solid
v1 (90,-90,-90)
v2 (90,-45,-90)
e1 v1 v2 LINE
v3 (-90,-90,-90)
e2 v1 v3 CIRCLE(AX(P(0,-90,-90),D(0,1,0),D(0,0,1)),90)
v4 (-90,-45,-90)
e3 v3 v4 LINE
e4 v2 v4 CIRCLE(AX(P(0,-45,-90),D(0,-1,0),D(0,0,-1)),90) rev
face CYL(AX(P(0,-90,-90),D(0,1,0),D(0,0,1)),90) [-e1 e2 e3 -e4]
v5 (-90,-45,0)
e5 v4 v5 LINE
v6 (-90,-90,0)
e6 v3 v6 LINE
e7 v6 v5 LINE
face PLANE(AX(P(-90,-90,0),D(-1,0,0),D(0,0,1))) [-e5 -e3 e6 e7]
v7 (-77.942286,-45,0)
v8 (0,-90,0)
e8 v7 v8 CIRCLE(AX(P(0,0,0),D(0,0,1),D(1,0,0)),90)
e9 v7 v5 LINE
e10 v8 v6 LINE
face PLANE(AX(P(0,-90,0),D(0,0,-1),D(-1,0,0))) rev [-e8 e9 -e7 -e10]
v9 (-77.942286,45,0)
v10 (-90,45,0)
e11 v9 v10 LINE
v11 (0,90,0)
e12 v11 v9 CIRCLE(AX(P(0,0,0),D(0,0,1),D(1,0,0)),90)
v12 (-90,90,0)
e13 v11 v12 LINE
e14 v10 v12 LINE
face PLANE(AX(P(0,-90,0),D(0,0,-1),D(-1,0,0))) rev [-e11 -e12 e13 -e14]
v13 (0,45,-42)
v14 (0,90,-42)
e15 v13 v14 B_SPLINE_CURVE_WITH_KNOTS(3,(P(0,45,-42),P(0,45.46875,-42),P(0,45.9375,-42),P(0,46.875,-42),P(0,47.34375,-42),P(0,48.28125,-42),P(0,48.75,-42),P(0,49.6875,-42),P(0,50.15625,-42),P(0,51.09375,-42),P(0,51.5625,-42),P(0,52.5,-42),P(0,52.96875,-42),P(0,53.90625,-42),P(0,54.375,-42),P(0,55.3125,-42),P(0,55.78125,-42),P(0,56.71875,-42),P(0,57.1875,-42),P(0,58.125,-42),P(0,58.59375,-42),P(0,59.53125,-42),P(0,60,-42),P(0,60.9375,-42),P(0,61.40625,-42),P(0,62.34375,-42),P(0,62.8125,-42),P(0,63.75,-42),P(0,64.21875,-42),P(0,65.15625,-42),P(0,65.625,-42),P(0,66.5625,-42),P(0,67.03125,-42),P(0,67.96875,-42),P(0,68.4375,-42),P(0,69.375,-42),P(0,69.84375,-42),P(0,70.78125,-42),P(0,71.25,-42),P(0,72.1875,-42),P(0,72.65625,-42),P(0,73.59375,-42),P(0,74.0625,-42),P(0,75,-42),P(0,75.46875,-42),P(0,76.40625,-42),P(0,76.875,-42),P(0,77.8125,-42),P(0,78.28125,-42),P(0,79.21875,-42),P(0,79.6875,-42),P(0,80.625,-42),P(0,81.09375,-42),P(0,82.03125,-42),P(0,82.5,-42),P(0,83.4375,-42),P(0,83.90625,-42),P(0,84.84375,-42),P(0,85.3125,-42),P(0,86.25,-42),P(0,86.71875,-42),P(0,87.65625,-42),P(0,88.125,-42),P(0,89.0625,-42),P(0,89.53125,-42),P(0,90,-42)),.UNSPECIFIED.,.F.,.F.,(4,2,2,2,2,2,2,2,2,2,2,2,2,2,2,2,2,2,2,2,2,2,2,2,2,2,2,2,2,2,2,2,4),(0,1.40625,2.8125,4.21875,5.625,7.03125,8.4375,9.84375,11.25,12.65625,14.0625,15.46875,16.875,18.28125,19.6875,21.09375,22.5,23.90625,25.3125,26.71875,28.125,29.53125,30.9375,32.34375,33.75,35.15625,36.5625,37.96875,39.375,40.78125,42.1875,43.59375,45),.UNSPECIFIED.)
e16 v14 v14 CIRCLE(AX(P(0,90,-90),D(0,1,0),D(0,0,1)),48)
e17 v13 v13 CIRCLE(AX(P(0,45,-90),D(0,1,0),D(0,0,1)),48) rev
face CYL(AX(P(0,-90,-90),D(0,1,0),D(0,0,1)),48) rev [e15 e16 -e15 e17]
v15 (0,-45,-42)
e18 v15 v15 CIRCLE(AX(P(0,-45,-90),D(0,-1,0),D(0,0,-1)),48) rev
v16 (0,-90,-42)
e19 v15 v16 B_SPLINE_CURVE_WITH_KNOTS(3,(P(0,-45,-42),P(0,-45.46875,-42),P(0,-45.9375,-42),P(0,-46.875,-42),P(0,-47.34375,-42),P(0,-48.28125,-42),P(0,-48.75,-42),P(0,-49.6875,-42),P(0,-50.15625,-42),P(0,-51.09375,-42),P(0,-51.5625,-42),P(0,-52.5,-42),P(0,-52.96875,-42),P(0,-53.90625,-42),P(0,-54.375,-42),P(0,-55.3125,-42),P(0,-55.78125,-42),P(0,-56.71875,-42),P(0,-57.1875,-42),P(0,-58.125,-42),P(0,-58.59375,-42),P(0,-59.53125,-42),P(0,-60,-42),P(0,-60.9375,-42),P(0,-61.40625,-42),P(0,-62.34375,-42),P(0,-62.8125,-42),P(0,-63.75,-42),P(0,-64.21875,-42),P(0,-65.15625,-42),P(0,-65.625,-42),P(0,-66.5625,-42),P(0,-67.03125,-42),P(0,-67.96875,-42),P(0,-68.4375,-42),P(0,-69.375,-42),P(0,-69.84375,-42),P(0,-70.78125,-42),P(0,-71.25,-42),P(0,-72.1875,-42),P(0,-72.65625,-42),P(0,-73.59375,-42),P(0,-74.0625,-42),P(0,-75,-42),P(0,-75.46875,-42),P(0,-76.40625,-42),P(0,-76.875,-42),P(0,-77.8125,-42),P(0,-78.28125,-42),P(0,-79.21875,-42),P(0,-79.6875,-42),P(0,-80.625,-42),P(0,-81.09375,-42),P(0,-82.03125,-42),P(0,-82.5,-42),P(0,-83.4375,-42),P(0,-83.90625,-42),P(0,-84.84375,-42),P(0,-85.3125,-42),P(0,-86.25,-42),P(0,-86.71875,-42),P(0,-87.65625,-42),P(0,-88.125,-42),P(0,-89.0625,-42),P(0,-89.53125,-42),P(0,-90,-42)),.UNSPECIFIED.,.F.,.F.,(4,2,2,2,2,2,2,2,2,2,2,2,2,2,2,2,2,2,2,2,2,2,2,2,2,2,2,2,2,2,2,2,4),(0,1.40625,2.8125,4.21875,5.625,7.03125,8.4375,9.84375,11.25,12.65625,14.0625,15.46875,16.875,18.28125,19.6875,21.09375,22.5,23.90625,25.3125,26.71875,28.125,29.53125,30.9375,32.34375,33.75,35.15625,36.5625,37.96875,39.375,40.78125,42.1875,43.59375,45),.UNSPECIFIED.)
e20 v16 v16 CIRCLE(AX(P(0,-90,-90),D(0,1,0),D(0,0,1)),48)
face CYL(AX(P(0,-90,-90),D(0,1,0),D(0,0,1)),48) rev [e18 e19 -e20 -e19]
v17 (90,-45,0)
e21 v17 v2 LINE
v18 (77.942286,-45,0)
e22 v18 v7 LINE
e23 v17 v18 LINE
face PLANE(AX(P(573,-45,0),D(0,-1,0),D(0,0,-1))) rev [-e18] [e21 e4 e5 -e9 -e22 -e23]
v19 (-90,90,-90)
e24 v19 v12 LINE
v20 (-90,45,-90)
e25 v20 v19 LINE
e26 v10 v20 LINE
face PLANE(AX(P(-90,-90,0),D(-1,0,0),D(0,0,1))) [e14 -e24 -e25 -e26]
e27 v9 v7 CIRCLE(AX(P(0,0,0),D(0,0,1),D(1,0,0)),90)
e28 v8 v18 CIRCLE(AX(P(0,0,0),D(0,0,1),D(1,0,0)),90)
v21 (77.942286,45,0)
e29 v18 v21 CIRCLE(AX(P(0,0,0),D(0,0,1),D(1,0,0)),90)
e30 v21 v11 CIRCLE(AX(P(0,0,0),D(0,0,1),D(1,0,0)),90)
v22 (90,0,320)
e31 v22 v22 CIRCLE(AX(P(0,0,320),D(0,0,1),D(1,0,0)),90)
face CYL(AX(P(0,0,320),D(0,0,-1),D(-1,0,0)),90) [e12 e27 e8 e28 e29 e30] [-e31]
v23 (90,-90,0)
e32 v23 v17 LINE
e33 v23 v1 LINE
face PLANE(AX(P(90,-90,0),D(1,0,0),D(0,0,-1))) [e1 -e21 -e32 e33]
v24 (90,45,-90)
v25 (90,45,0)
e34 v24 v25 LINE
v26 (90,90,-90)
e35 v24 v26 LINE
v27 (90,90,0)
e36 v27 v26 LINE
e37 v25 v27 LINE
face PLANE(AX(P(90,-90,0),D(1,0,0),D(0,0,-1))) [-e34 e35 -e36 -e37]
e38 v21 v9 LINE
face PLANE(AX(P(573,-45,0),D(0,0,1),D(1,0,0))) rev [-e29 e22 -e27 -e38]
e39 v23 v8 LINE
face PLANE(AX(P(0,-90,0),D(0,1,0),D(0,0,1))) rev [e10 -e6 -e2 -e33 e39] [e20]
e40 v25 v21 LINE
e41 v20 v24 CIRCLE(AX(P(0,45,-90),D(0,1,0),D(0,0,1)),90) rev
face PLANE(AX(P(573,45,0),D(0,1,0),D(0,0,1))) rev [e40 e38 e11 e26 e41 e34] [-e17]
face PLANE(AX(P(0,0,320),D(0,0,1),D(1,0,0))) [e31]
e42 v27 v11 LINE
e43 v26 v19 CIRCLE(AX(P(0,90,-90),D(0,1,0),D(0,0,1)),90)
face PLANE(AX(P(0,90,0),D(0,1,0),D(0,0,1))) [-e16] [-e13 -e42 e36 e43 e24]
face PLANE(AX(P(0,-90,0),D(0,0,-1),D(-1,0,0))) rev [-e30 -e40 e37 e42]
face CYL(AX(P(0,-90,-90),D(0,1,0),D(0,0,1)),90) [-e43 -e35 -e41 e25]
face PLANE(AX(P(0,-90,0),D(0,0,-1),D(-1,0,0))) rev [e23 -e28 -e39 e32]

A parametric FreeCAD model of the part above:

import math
import FreeCAD as App
import Part
import Sketcher

doc = App.newDocument("Part")
body = doc.addObject("PartDesign::Body", "Body")

# Sketch on XY plane
sketch1 = doc.addObject("Sketcher::SketchObject", "Sketch")
body.addObject(sketch1)
sketch1.AttachmentSupport = (doc.XY_Plane, [""])
sketch1.MapMode = "FlatFace"
sketch1.addGeometry(Part.Circle(App.Vector(0, 0, 0), App.Vector(0, 0, 1), 90), False)
sketch1.addConstraint([
    Sketcher.Constraint("Coincident", 0, 3, -1, 1),
    Sketcher.Constraint("Diameter", 0, 180.0),
])
pad1 = doc.addObject("PartDesign::Pad", "Pad")
body.addObject(pad1)
pad1.Profile = sketch1
pad1.Length = 320

# Sketch on XZ plane
sketch2 = doc.addObject("Sketcher::SketchObject", "Sketch001")
body.addObject(sketch2)
sketch2.AttachmentSupport = (doc.XZ_Plane, [""])
sketch2.MapMode = "FlatFace"
sketch2.addGeometry([
    Part.LineSegment(App.Vector(90, 0, 0), App.Vector(90, -90, 0)),  # 0
    Part.ArcOfCircle(Part.Circle(App.Vector(0, -90, 0), App.Vector(0, 0, 1), 90), math.radians(180), math.radians(360)),  # 1
    Part.LineSegment(App.Vector(-90, -90, 0), App.Vector(-90, 0, 0)),  # 2
    Part.LineSegment(App.Vector(-90, 0, 0), App.Vector(90, 0, 0)),  # 3
    Part.Circle(App.Vector(0, -90, 0), App.Vector(0, 0, 1), 48),  # 4
], False)
sketch2.addConstraint([
    Sketcher.Constraint("Tangent", 0, 2, 1, 2),
    Sketcher.Constraint("Tangent", 1, 1, 2, 1),
    Sketcher.Constraint("Coincident", 2, 2, 3, 1),
    Sketcher.Constraint("Coincident", 3, 2, 0, 1),
    Sketcher.Constraint("Vertical", 0),
    Sketcher.Constraint("Vertical", 2),
    Sketcher.Constraint("Horizontal", 3),
    Sketcher.Constraint("Coincident", 4, 3, 1, 3),
    Sketcher.Constraint("Symmetric", 2, 2, 3, 2, -1, 1),
    Sketcher.Constraint("Diameter", 4, 96.0),
    Sketcher.Constraint("Radius", 1, 90.0),
    Sketcher.Constraint("DistanceY", 0, 2, 0, 1, 90.0),
])
pad2 = doc.addObject("PartDesign::Pad", "Pad001")
body.addObject(pad2)
pad2.Profile = sketch2
pad2.Type = "TwoLengths"
pad2.Length = 90
pad2.Length2 = 90
pad2.Reversed = True

# Sketch on YZ plane
sketch3 = doc.addObject("Sketcher::SketchObject", "Sketch002")
body.addObject(sketch3)
sketch3.AttachmentSupport = (doc.YZ_Plane, [""])
sketch3.MapMode = "FlatFace"
sketch3.AttachmentOffset = App.Placement(App.Vector(0, 0, -90), App.Rotation())
sketch3.addGeometry([
    Part.LineSegment(App.Vector(45, -213, 0), App.Vector(-45, -213, 0)),
    Part.LineSegment(App.Vector(-45, -213, 0), App.Vector(-45, 0, 0)),
    Part.LineSegment(App.Vector(-45, 0, 0), App.Vector(45, 0, 0)),
    Part.LineSegment(App.Vector(45, 0, 0), App.Vector(45, -213, 0)),
], False)
sketch3.addConstraint([
    Sketcher.Constraint("Coincident", 0, 2, 1, 1),
    Sketcher.Constraint("Coincident", 1, 2, 2, 1),
    Sketcher.Constraint("Coincident", 2, 2, 3, 1),
    Sketcher.Constraint("Coincident", 3, 2, 0, 1),
    Sketcher.Constraint("Horizontal", 0),
    Sketcher.Constraint("Vertical", 1),
    Sketcher.Constraint("Horizontal", 2),
    Sketcher.Constraint("Vertical", 3),
    Sketcher.Constraint("Symmetric", 1, 2, 2, 2, -1, 1),
    Sketcher.Constraint("DistanceX", 0, 2, 0, 1, 90.0),
    Sketcher.Constraint("DistanceY", 1, 1, 1, 2, 213.435441),
])
pocket1 = doc.addObject("PartDesign::Pocket", "Pocket")
body.addObject(pocket1)
pocket1.Profile = sketch3
pocket1.Length = 663
pocket1.Reversed = True

doc.recompute()
